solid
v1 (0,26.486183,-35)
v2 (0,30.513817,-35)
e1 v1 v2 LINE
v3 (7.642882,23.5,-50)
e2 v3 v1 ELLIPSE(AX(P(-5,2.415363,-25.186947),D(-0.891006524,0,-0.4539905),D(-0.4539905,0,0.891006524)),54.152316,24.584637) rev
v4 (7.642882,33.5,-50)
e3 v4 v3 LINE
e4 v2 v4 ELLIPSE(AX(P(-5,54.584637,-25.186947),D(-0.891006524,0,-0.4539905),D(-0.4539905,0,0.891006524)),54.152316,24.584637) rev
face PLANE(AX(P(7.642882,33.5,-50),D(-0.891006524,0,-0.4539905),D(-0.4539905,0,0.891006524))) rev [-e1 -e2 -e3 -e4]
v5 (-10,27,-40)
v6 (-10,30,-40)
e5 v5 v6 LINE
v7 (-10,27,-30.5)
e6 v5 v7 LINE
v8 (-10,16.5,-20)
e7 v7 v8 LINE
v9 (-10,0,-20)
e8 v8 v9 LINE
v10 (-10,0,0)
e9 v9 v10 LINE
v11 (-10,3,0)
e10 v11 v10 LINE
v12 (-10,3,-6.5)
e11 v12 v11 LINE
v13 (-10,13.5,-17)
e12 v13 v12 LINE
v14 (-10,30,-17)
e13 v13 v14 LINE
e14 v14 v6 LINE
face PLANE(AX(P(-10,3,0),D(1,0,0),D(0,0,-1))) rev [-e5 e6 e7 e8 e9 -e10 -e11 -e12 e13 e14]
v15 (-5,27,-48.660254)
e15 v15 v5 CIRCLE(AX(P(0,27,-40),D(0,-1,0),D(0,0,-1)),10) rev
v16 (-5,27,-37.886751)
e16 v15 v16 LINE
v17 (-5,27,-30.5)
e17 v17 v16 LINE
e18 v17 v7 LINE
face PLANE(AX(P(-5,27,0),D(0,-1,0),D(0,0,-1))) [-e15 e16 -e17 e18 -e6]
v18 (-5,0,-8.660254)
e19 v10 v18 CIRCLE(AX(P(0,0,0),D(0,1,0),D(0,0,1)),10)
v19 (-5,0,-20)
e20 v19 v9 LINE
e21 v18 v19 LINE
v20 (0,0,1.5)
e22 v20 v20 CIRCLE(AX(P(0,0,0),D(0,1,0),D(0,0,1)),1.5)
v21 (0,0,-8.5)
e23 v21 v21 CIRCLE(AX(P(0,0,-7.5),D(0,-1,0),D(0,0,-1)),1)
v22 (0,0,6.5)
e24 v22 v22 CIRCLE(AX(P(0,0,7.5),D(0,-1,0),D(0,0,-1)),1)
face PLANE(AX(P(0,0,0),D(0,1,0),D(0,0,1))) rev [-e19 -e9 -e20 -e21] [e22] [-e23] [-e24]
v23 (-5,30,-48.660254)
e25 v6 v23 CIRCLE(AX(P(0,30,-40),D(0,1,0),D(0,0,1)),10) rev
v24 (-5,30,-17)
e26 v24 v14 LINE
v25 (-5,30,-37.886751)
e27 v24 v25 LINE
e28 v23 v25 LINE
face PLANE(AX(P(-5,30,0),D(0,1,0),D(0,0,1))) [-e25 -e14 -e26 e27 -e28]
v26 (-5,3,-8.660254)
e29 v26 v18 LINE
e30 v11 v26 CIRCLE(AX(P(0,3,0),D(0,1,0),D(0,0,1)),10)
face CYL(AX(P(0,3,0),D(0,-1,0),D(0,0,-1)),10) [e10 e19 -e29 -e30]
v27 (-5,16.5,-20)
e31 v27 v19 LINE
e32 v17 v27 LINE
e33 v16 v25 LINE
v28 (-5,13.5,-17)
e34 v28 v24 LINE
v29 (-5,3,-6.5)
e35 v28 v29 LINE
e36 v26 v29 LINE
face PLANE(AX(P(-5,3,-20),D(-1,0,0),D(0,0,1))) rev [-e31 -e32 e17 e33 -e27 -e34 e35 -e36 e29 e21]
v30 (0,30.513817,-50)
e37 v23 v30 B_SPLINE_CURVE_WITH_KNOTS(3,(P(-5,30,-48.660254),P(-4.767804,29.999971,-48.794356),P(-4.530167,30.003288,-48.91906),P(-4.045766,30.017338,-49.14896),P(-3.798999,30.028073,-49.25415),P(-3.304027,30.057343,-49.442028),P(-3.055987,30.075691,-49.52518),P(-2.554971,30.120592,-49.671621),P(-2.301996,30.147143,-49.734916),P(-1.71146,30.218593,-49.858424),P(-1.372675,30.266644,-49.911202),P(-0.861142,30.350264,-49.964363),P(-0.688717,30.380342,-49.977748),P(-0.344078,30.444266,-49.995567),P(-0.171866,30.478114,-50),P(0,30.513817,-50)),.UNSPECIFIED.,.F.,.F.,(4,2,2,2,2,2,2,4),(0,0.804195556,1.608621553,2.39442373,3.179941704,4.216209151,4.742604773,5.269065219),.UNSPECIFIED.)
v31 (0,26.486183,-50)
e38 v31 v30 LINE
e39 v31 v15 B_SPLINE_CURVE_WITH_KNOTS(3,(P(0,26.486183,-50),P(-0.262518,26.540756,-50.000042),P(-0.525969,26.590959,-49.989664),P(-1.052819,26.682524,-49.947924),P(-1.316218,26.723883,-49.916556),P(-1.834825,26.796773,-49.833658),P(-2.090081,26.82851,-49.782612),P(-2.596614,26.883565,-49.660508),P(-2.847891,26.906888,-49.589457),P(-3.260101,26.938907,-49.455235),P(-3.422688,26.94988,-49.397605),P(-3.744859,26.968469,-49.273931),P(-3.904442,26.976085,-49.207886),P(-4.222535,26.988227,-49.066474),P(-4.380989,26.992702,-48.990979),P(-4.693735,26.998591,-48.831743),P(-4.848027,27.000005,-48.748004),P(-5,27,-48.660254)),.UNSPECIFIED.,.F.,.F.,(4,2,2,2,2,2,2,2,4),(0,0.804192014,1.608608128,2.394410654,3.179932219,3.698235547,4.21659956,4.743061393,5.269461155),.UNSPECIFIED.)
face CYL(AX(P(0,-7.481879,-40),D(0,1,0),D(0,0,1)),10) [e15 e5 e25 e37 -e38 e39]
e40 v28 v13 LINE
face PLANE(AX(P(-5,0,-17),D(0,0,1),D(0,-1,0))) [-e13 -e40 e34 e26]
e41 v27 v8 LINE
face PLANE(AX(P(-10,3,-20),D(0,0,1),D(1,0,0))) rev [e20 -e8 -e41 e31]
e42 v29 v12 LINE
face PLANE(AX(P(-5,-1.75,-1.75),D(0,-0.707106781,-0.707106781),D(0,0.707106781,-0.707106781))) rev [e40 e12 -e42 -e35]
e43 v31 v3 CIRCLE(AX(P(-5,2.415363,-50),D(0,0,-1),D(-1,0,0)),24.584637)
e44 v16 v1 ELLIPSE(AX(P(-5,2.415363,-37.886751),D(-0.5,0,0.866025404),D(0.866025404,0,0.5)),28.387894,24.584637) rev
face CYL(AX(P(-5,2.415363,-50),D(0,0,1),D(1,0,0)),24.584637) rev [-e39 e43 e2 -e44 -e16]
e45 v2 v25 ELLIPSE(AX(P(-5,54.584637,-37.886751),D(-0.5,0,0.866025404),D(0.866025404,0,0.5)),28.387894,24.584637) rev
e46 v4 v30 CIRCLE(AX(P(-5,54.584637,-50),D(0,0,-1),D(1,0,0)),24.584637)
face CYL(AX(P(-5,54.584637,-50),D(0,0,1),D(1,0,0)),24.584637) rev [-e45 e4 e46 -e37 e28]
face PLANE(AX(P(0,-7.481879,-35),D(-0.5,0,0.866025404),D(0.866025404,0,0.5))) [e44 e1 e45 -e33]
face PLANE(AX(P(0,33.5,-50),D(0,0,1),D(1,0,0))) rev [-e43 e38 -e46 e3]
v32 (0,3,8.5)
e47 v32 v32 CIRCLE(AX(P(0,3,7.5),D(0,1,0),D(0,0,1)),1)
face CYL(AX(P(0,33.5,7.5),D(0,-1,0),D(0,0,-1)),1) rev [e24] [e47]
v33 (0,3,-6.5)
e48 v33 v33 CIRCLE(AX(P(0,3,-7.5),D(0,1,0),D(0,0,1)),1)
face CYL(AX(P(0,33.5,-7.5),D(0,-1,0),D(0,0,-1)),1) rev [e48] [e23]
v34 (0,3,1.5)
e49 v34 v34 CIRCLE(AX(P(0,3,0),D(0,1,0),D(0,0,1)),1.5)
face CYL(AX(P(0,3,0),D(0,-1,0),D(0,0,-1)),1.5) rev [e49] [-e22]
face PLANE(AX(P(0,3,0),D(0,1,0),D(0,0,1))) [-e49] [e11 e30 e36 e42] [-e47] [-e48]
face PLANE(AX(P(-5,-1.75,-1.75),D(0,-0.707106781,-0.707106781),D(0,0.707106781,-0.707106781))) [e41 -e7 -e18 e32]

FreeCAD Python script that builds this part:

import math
import FreeCAD as App
import Part
import Sketcher

V = App.Vector
Q = App.Units.Quantity


def add_polygon(sketch, points):
    """Adds a closed chain of lines whose ends are joined by coincident constraints."""
    first, n = sketch.GeometryCount, len(points)
    for a, b in zip(points, points[1:] + points[:1]):
        sketch.addGeometry(Part.LineSegment(App.Vector(*a, 0), App.Vector(*b, 0)), False)
    for i in range(n):
        sketch.addConstraint(Sketcher.Constraint("Coincident", first + i, 2, first + (i + 1) % n, 1))

doc = App.newDocument("Part")
body = doc.addObject("PartDesign::Body", "Body")

# Sketch on XZ plane
sketch1 = body.newObject("Sketcher::SketchObject", "Sketch")
sketch1.AttachmentSupport = (doc.getObject("XZ_Plane"), [""])
sketch1.MapMode = "FlatFace"
sketch1.addGeometry([
    Part.LineSegment(V(-10, -20, 0), V(-10, 0, 0)),  # 0
    Part.ArcOfCircle(Part.Circle(V(0, 0, 0), V(0, 0, 1), 10), math.radians(-120), math.radians(180)),  # 1
    Part.LineSegment(V(-5, -8.660254, 0), V(-5, -20, 0)),  # 2
    Part.LineSegment(V(-5, -20, 0), V(-10, -20, 0)),  # 3
    Part.Circle(V(0, 0, 0), V(0, 0, 1), 1.5),  # 4
], False)
sketch1.addConstraint([
    Sketcher.Constraint("Tangent", 0, 2, 1, 2),
    Sketcher.Constraint("Coincident", 1, 1, 2, 1),
    Sketcher.Constraint("Coincident", 2, 2, 3, 1),
    Sketcher.Constraint("Coincident", 3, 2, 0, 1),
    Sketcher.Constraint("Vertical", 0),
    Sketcher.Constraint("Vertical", 2),
    Sketcher.Constraint("Horizontal", 3),
    Sketcher.Constraint("Coincident", 1, 3, -1, 1),
    Sketcher.Constraint("Coincident", 4, 3, -1, 1),
    Sketcher.Constraint("Diameter", 4, 3.0),
    Sketcher.Constraint("Radius", 1, 10.0),
    Sketcher.Constraint("DistanceX", 3, 2, 3, 1, 5.0),
    Sketcher.Constraint("DistanceY", 0, 1, 0, 2, 20.0),
])
pad1 = body.newObject("PartDesign::Pad", "Pad")
pad1.Profile = sketch1
pad1.Length = 3
pad1.Reversed = True

# Sketch on YZ plane
sketch2 = body.newObject("Sketcher::SketchObject", "Sketch001")
sketch2.AttachmentSupport = (doc.getObject("YZ_Plane"), [""])
sketch2.MapMode = "FlatFace"
sketch2.AttachmentOffset = App.Placement(V(0, 0, -10), App.Rotation())
add_polygon(sketch2, [(0, -20), (0, -6.5), (3, -6.5), (13.5, -17), (30, -17), (30, -30), (27, -30), (27, -30.5), (16.5, -20)])  # lines 0-8
sketch2.addConstraint([
    Sketcher.Constraint("Vertical", 0),
    Sketcher.Constraint("Horizontal", 1),
    Sketcher.Constraint("Horizontal", 3),
    Sketcher.Constraint("Vertical", 4),
    Sketcher.Constraint("Horizontal", 5),
    Sketcher.Constraint("Vertical", 6),
    Sketcher.Constraint("Horizontal", 8),
    Sketcher.Constraint("PointOnObject", 0, 2, -2),
    Sketcher.Constraint("Parallel", 2, 7),
    Sketcher.Constraint("Equal", 1, 5),
    Sketcher.Constraint("Equal", 3, 8),
    Sketcher.Constraint("DistanceX", 1, 1, 1, 2, 3.0),
    Sketcher.Constraint("DistanceY", 4, 2, 4, 1, 13.0),
    Sketcher.Constraint("Angle", 2, Q("-45 deg")),
    Sketcher.Constraint("DistanceX", 3, 1, 3, 2, 16.5),
    Sketcher.Constraint("DistanceY", 0, 1, 0, 2, 13.5),
    Sketcher.Constraint("DistanceY", 2, 2, -1, 1, 17.0),
    Sketcher.Constraint("DistanceX", -1, 1, 3, 2, 30.0),
])
pad2 = body.newObject("PartDesign::Pad", "Pad001")
pad2.Profile = sketch2
pad2.Length = 5

# Sketch on XZ plane
sketch3 = body.newObject("Sketcher::SketchObject", "Sketch002")
sketch3.AttachmentSupport = (doc.getObject("XZ_Plane"), [""])
sketch3.MapMode = "FlatFace"
sketch3.AttachmentOffset = App.Placement(V(0, 0, -30), App.Rotation())
sketch3.addGeometry([
    Part.LineSegment(V(-10, -17, 0), V(-5, -17, 0)),  # 0
    Part.LineSegment(V(-5, -17, 0), V(-5, -37.886751, 0)),  # 1
    Part.LineSegment(V(-5, -37.886751, 0), V(0, -35, 0)),  # 2
    Part.LineSegment(V(0, -35, 0), V(0, -50, 0)),  # 3
    Part.ArcOfCircle(Part.Circle(V(0, -40, 0), V(0, 0, 1), 10), math.radians(180), math.radians(270)),  # 4
    Part.LineSegment(V(-10, -40, 0), V(-10, -17, 0)),  # 5
], False)
sketch3.addConstraint([
    Sketcher.Constraint("Coincident", 0, 2, 1, 1),
    Sketcher.Constraint("Coincident", 1, 2, 2, 1),
    Sketcher.Constraint("Coincident", 2, 2, 3, 1),
    Sketcher.Constraint("Coincident", 3, 2, 4, 2),
    Sketcher.Constraint("Tangent", 4, 1, 5, 1),
    Sketcher.Constraint("Coincident", 5, 2, 0, 1),
    Sketcher.Constraint("Horizontal", 0),
    Sketcher.Constraint("Vertical", 1),
    Sketcher.Constraint("Vertical", 3),
    Sketcher.Constraint("Vertical", 5),
    Sketcher.Constraint("PointOnObject", 4, 3, -2),
    Sketcher.Constraint("PointOnObject", 2, 2, -2),
    Sketcher.Constraint("Radius", 4, 10.0),
    Sketcher.Constraint("DistanceX", 0, 1, 0, 2, 5.0),
    Sketcher.Constraint("DistanceY", 3, 2, 3, 1, 15.0),
    Sketcher.Constraint("DistanceY", 5, 1, 5, 2, 23.0),
    Sketcher.Constraint("Angle", 2, Q("30 deg")),
    Sketcher.Constraint("DistanceY", 4, 3, -1, 1, 40.0),
])
pad3 = body.newObject("PartDesign::Pad", "Pad002")
pad3.Profile = sketch3
pad3.Length = 3

# Sketch on XZ plane
sketch4 = body.newObject("Sketcher::SketchObject", "Sketch003")
sketch4.AttachmentSupport = (doc.getObject("XZ_Plane"), [""])
sketch4.MapMode = "FlatFace"
sketch4.AttachmentOffset = App.Placement(V(0, 0, -28.5), App.Rotation())
sketch4.addGeometry([
    Part.LineSegment(V(-10, -37.886751, 0), V(-5, -37.886751, 0)),  # 0
    Part.LineSegment(V(-5, -37.886751, 0), V(0, -35, 0)),  # 1
    Part.LineSegment(V(0, -35, 0), V(7.642882, -50, 0)),  # 2
    Part.LineSegment(V(7.642882, -50, 0), V(0, -50, 0)),  # 3
    Part.ArcOfCircle(Part.Circle(V(0, -40, 0), V(0, 0, 1), 10), math.radians(180), math.radians(270)),  # 4
    Part.LineSegment(V(-10, -40, 0), V(-10, -37.886751, 0)),  # 5
], False)
sketch4.addConstraint([
    Sketcher.Constraint("Coincident", 0, 2, 1, 1),
    Sketcher.Constraint("Coincident", 1, 2, 2, 1),
    Sketcher.Constraint("Coincident", 2, 2, 3, 1),
    Sketcher.Constraint("Tangent", 3, 2, 4, 2),
    Sketcher.Constraint("Tangent", 4, 1, 5, 1),
    Sketcher.Constraint("Coincident", 5, 2, 0, 1),
    Sketcher.Constraint("Horizontal", 0),
    Sketcher.Constraint("Horizontal", 3),
    Sketcher.Constraint("Vertical", 5),
    Sketcher.Constraint("PointOnObject", 4, 3, -2),
    Sketcher.Constraint("PointOnObject", 1, 2, -2),
    Sketcher.Constraint("Radius", 4, 10.0),
    Sketcher.Constraint("DistanceX", 0, 1, 0, 2, 5.0),
    Sketcher.Constraint("Angle", 1, Q("30 deg")),
    Sketcher.Constraint("Angle", 2, Q("-63 deg")),
    Sketcher.Constraint("DistanceY", 4, 3, -1, 1, 40.0),
    Sketcher.Constraint("DistanceY", 1, 2, -1, 1, 35.0),
])
pad4 = body.newObject("PartDesign::Pad", "Pad003")
pad4.Profile = sketch4
pad4.Length = 10
pad4.Midplane = True

# Sketch on XY plane
sketch5 = body.newObject("Sketcher::SketchObject", "Sketch004")
sketch5.AttachmentSupport = (doc.getObject("XY_Plane"), [""])
sketch5.MapMode = "FlatFace"
sketch5.AttachmentOffset = App.Placement(V(0, 0, -35), App.Rotation())
add_polygon(sketch5, [(-18.157, 41.657), (-18.157, -8.157), (18.157, -8.157), (18.157, 41.657)])  # lines 0-3
sketch5.addGeometry(Part.LineSegment(V(-10, 27, 0), V(-10, 30, 0)), False)  # 4
sketch5.addGeometry(Part.LineSegment(V(-10, 30, 0), V(-5, 30, 0)), False)  # 5
sketch5.addGeometry(Part.ArcOfCircle(Part.Circle(V(-5, 54.584637, 0), V(0, 0, 1), 24.584637), math.radians(-90), math.radians(-59.052032)), False)  # 6
sketch5.addGeometry(Part.LineSegment(V(7.642882, 33.5, 0), V(7.642882, 23.5, 0)), False)  # 7
sketch5.addGeometry(Part.ArcOfCircle(Part.Circle(V(-5, 2.415363, 0), V(0, 0, 1), 24.584637), math.radians(59.052032), math.radians(90)), False)  # 8
sketch5.addGeometry(Part.LineSegment(V(-5, 27, 0), V(-10, 27, 0)), False)  # 9
sketch5.addConstraint([
    Sketcher.Constraint("Coincident", 4, 2, 5, 1),
    Sketcher.Constraint("Tangent", 5, 2, 6, 1),
    Sketcher.Constraint("Coincident", 6, 2, 7, 1),
    Sketcher.Constraint("Coincident", 7, 2, 8, 1),
    Sketcher.Constraint("Tangent", 8, 2, 9, 1),
    Sketcher.Constraint("Coincident", 9, 2, 4, 1),
    Sketcher.Constraint("Vertical", 0),
    Sketcher.Constraint("Horizontal", 1),
    Sketcher.Constraint("Vertical", 2),
    Sketcher.Constraint("Horizontal", 3),
    Sketcher.Constraint("Vertical", 4),
    Sketcher.Constraint("Horizontal", 5),
    Sketcher.Constraint("Vertical", 7),
    Sketcher.Constraint("Horizontal", 9),
    Sketcher.Constraint("Equal", 6, 8),
    Sketcher.Constraint("Vertical", 6, 3, 8, 3),
    Sketcher.Constraint("DistanceX", 5, 1, 5, 2, 5.0),
    Sketcher.Constraint("DistanceY", 4, 1, 4, 2, 3.0),
    Sketcher.Constraint("DistanceY", 7, 2, 7, 1, 10.0),
    Sketcher.Constraint("DistanceX", 6, 3, -1, 1, 5.0),
    Sketcher.Constraint("DistanceY", -1, 1, 4, 2, 30.0),
    Sketcher.Constraint("DistanceX", 1, 1, 1, 2, 36.314),
    Sketcher.Constraint("DistanceY", 0, 2, 0, 1, 49.814),
    Sketcher.Constraint("DistanceX", 0, 2, -1, 1, 18.157),
    Sketcher.Constraint("DistanceY", 0, 2, -1, 1, 8.157),
    Sketcher.Constraint("Radius", 6, 24.584637),
])
pocket1 = body.newObject("PartDesign::Pocket", "Pocket")
pocket1.Profile = sketch5
pocket1.Type = "ThroughAll"

# Sketch on XZ plane
sketch6 = body.newObject("Sketcher::SketchObject", "Sketch005")
sketch6.AttachmentSupport = (doc.getObject("XZ_Plane"), [""])
sketch6.MapMode = "FlatFace"
sketch6.addGeometry([
    Part.Circle(V(0, -7.5, 0), V(0, 0, 1), 1),
    Part.Circle(V(0, 7.5, 0), V(0, 0, 1), 1),
], False)
sketch6.addConstraint([
    Sketcher.Constraint("Equal", 0, 1),
    Sketcher.Constraint("Symmetric", 0, 3, 1, 3, -1, 1),
    Sketcher.Constraint("PointOnObject", 0, 3, -2),
    Sketcher.Constraint("Diameter", 0, 2.0),
    Sketcher.Constraint("DistanceY", 0, 3, 1, 3, 15.0),
])
pocket2 = body.newObject("PartDesign::Pocket", "Pocket001")
pocket2.Profile = sketch6
pocket2.Type = "ThroughAll"

doc.recompute()
